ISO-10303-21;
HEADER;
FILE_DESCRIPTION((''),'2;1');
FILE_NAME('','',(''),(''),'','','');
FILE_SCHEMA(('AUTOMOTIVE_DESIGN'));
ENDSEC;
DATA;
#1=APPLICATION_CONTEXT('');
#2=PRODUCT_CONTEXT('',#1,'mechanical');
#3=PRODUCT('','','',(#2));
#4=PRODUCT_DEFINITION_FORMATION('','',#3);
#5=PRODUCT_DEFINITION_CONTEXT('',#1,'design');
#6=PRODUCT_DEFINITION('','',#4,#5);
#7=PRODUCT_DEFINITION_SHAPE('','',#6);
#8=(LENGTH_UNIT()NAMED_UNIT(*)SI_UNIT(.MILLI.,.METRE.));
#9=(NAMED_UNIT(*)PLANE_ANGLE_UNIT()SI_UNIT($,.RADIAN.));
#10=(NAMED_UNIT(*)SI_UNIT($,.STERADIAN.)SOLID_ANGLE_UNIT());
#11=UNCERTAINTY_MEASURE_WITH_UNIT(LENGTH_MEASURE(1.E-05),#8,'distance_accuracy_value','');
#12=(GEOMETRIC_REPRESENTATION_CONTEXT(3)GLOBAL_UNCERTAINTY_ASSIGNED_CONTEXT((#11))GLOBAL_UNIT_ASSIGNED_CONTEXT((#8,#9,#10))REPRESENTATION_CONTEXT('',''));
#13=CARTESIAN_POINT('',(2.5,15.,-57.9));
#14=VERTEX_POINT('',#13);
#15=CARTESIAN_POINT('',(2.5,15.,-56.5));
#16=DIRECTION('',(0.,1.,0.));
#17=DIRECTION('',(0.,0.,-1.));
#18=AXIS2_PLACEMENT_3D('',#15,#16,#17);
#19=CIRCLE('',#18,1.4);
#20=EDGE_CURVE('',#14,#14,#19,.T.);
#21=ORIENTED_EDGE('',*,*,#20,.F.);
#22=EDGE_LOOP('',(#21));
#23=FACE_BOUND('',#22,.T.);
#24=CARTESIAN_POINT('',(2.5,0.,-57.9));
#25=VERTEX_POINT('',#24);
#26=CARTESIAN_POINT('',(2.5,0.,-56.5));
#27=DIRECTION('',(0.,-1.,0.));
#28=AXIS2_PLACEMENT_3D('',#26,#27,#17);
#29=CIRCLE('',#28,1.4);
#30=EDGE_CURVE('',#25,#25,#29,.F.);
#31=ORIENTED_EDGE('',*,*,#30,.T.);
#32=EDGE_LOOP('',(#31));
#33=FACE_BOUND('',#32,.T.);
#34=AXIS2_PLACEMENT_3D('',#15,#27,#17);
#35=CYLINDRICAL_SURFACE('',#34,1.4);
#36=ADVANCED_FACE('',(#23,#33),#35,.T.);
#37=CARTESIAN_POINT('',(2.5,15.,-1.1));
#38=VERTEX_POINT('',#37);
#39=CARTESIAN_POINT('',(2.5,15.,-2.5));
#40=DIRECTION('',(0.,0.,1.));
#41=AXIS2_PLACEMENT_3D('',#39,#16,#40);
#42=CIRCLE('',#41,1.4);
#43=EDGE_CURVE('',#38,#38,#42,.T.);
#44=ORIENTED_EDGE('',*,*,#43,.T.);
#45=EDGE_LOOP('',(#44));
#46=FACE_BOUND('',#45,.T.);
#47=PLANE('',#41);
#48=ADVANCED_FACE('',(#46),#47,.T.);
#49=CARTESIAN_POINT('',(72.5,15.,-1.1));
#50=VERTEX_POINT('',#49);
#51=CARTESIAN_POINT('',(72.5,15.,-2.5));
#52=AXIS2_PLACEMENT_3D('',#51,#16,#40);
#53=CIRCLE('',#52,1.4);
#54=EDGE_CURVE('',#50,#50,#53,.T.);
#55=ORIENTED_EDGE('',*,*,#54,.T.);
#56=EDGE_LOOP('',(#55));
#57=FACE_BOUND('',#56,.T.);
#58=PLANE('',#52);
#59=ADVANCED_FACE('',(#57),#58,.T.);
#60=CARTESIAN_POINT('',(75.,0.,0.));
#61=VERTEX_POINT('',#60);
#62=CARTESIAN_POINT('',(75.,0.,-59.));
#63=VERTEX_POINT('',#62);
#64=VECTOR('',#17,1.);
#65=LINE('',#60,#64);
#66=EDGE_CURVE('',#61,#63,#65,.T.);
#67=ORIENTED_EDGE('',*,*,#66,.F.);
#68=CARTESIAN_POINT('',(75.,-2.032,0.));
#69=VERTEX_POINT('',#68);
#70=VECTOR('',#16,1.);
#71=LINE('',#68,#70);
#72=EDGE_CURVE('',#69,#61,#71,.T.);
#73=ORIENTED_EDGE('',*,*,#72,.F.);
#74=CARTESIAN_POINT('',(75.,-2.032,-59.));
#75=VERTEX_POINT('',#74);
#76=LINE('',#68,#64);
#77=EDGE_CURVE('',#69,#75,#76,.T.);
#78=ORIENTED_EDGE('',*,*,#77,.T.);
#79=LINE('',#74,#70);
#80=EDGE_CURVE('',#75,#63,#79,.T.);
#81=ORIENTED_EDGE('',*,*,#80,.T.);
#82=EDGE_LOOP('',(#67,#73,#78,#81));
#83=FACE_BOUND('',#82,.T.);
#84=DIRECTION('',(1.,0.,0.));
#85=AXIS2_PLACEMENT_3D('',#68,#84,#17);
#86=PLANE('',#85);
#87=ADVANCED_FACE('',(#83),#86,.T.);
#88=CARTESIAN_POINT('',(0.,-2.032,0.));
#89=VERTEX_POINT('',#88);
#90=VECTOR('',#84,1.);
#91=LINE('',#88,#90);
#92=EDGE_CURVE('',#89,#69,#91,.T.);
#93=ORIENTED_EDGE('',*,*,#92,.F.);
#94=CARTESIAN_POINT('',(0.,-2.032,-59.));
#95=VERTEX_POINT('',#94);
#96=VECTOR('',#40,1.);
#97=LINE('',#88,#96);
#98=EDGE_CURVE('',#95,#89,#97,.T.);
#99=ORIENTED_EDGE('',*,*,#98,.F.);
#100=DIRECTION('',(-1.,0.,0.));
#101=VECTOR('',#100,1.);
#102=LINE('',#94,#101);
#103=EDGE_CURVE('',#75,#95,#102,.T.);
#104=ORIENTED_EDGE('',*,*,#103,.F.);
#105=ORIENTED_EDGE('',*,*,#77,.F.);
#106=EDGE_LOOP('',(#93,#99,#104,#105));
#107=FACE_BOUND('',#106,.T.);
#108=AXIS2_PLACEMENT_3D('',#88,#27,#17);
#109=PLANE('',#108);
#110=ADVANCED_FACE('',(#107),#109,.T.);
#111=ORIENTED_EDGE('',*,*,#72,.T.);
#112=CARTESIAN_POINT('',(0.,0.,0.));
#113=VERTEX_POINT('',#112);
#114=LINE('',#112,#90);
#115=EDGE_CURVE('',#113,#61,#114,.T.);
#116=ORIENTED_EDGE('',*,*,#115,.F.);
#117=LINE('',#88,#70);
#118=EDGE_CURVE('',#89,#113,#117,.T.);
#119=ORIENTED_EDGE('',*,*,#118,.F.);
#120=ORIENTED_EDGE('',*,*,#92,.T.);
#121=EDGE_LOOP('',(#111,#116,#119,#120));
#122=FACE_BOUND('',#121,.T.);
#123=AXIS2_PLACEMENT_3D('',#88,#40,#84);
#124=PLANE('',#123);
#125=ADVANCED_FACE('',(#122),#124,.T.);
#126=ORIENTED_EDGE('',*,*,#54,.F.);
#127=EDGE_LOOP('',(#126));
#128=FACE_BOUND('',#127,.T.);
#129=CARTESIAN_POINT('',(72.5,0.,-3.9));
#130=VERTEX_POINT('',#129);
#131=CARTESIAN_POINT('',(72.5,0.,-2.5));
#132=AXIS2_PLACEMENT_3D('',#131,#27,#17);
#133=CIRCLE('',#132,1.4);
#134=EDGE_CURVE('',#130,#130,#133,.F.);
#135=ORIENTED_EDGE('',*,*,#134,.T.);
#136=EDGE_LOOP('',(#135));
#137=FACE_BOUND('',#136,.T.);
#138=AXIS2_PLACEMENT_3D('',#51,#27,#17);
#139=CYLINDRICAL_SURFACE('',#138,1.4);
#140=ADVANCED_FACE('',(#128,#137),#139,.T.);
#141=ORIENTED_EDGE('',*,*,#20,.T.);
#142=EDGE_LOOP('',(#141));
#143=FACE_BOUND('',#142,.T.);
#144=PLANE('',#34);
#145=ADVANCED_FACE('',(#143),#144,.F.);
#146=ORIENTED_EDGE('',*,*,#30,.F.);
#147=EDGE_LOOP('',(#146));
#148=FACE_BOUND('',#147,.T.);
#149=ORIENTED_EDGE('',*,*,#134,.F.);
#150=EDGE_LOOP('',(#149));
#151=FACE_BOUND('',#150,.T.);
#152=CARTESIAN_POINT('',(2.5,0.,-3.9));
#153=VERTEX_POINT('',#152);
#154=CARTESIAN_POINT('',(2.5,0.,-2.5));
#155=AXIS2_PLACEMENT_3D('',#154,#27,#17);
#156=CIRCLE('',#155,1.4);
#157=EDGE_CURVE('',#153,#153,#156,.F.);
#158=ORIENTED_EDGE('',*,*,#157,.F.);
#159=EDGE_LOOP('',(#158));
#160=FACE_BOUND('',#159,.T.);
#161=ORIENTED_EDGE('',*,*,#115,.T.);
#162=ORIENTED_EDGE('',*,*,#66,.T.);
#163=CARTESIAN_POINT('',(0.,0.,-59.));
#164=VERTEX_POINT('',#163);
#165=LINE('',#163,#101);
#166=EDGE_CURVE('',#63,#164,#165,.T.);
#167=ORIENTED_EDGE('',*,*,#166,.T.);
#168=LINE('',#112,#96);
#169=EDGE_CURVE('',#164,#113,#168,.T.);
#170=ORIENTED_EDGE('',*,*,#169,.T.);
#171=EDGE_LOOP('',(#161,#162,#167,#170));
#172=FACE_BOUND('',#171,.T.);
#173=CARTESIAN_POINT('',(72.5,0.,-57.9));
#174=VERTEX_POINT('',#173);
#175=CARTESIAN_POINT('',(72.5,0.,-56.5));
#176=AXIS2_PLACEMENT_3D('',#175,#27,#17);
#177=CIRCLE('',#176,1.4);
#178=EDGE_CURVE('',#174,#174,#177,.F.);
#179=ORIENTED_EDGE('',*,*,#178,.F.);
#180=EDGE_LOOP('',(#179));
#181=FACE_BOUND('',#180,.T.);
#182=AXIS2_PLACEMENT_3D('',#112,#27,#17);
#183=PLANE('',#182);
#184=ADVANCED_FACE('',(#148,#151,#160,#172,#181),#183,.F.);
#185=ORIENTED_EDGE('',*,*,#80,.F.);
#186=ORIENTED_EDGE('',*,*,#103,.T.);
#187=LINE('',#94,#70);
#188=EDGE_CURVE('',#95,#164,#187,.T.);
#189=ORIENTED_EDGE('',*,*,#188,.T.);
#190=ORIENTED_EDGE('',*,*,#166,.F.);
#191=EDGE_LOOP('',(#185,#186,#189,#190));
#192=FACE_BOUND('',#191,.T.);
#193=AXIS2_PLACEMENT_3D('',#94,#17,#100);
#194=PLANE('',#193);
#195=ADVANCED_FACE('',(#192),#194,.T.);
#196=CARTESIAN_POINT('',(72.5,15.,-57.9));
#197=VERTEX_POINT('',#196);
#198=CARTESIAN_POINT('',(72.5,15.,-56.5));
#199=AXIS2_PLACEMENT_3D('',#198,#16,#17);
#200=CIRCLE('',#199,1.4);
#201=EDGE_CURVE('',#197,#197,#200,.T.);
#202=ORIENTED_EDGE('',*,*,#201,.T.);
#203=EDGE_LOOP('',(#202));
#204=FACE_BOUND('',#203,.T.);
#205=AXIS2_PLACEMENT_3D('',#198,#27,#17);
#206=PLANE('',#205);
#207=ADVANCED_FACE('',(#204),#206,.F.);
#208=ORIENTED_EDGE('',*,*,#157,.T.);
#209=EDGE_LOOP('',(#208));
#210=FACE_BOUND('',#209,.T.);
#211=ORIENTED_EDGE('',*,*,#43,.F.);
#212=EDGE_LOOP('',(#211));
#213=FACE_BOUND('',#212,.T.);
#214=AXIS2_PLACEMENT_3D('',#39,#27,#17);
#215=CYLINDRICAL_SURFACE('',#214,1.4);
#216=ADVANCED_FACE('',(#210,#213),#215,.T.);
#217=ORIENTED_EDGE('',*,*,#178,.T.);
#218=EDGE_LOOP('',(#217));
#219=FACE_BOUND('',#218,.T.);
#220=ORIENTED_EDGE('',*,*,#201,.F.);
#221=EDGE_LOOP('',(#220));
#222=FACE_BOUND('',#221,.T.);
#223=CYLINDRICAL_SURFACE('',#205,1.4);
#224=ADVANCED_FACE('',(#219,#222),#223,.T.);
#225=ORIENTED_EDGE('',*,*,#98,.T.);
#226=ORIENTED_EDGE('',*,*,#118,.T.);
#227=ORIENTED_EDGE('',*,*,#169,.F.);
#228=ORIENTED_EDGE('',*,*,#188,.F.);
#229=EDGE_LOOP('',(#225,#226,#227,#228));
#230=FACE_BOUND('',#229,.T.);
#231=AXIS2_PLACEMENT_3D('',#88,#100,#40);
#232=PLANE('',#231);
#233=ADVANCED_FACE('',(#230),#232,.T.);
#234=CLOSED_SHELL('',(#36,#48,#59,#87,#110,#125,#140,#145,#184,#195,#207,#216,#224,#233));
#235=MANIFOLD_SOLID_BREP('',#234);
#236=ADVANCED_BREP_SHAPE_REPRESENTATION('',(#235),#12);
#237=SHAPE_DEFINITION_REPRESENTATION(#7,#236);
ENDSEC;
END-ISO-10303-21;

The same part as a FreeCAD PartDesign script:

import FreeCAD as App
import Part
import Sketcher
from FreeCAD import Vector

doc = App.newDocument("Part")
body = doc.addObject("PartDesign::Body", "Body")

# Sketch on XZ plane
sketch1 = doc.addObject("Sketcher::SketchObject", "Sketch")
body.addObject(sketch1)
sketch1.AttachmentSupport = (doc.XZ_Plane, [""])
sketch1.MapMode = "FlatFace"
sketch1.addGeometry([
    Part.LineSegment(Vector(0, -59, 0), Vector(0, 0, 0)),
    Part.LineSegment(Vector(0, 0, 0), Vector(75, 0, 0)),
    Part.LineSegment(Vector(75, 0, 0), Vector(75, -59, 0)),
    Part.LineSegment(Vector(75, -59, 0), Vector(0, -59, 0)),
], False)
sketch1.addConstraint([
    Sketcher.Constraint("Coincident", 0, 2, 1, 1),
    Sketcher.Constraint("Coincident", 1, 2, 2, 1),
    Sketcher.Constraint("Coincident", 2, 2, 3, 1),
    Sketcher.Constraint("Coincident", 3, 2, 0, 1),
    Sketcher.Constraint("Vertical", 0),
    Sketcher.Constraint("Horizontal", 1),
    Sketcher.Constraint("Vertical", 2),
    Sketcher.Constraint("Horizontal", 3),
    Sketcher.Constraint("Coincident", 0, 2, -1, 1),
    Sketcher.Constraint("DistanceX", 1, 1, 1, 2, 75.0),
    Sketcher.Constraint("DistanceY", 0, 1, 0, 2, 59.0),
])
pad1 = doc.addObject("PartDesign::Pad", "Pad")
body.addObject(pad1)
pad1.Profile = sketch1
pad1.Length = 2.032

# Sketch on XZ plane
sketch2 = doc.addObject("Sketcher::SketchObject", "Sketch001")
body.addObject(sketch2)
sketch2.AttachmentSupport = (doc.XZ_Plane, [""])
sketch2.MapMode = "FlatFace"
sketch2.addGeometry([
    Part.Circle(Vector(2.5, -2.5, 0), Vector(0, 0, 1), 1.4),
    Part.Circle(Vector(72.5, -2.5, 0), Vector(0, 0, 1), 1.4),
    Part.Circle(Vector(72.5, -56.5, 0), Vector(0, 0, 1), 1.4),
    Part.Circle(Vector(2.5, -56.5, 0), Vector(0, 0, 1), 1.4),
], False)
sketch2.addConstraint([
    Sketcher.Constraint("Equal", 0, 1),
    Sketcher.Constraint("Equal", 1, 2),
    Sketcher.Constraint("Equal", 2, 3),
    Sketcher.Constraint("Horizontal", 0, 3, 1, 3),
    Sketcher.Constraint("Horizontal", 2, 3, 3, 3),
    Sketcher.Constraint("Vertical", 1, 3, 2, 3),
    Sketcher.Constraint("Vertical", 0, 3, 3, 3),
    Sketcher.Constraint("Diameter", 0, 2.8),
    Sketcher.Constraint("DistanceX", 0, 3, 1, 3, 70.0),
    Sketcher.Constraint("DistanceY", 2, 3, 1, 3, 54.0),
    Sketcher.Constraint("DistanceX", -1, 1, 0, 3, 2.5),
    Sketcher.Constraint("DistanceY", 0, 3, -1, 1, 2.5),
])
pad2 = doc.addObject("PartDesign::Pad", "Pad001")
body.addObject(pad2)
pad2.Profile = sketch2
pad2.Length = 15
pad2.Reversed = True

doc.recompute()
